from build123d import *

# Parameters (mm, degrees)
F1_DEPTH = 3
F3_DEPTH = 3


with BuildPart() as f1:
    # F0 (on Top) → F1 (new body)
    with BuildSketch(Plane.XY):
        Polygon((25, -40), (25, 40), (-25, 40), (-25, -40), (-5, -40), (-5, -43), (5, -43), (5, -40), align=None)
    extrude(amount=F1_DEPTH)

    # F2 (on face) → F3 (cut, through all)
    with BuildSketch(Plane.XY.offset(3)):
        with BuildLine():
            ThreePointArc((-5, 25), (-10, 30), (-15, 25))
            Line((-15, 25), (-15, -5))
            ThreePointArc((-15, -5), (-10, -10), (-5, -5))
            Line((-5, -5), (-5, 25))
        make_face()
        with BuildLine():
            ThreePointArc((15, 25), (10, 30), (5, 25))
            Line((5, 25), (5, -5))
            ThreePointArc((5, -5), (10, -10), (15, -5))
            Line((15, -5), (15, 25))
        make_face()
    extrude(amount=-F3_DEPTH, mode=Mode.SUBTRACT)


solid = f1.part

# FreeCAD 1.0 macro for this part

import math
import FreeCAD as App
import Part
import Sketcher
from FreeCAD import Vector
Q = App.Units.Quantity

doc = App.newDocument("Part")
body = doc.addObject("PartDesign::Body", "Body")

sketch1 = doc.addObject("Sketcher::SketchObject", "Sketch")
body.addObject(sketch1)
sketch1.AttachmentSupport = (doc.XY_Plane, [""])
sketch1.MapMode = "FlatFace"
sketch1.addGeometry([
    Part.LineSegment(Vector(25, -40, 0), Vector(25, 40, 0)),
    Part.LineSegment(Vector(25, 40, 0), Vector(-25, 40, 0)),
    Part.LineSegment(Vector(-25, 40, 0), Vector(-25, -40, 0)),
    Part.LineSegment(Vector(-25, -40, 0), Vector(-5, -40, 0)),
    Part.LineSegment(Vector(-5, -40, 0), Vector(-5, -43, 0)),
    Part.LineSegment(Vector(-5, -43, 0), Vector(5, -43, 0)),
    Part.LineSegment(Vector(5, -43, 0), Vector(5, -40, 0)),
    Part.LineSegment(Vector(5, -40, 0), Vector(25, -40, 0)),
], False)
sketch1.addConstraint([
    Sketcher.Constraint("Coincident", 0, 2, 1, 1),
    Sketcher.Constraint("Coincident", 1, 2, 2, 1),
    Sketcher.Constraint("Coincident", 2, 2, 3, 1),
    Sketcher.Constraint("Coincident", 3, 2, 4, 1),
    Sketcher.Constraint("Coincident", 4, 2, 5, 1),
    Sketcher.Constraint("Coincident", 5, 2, 6, 1),
    Sketcher.Constraint("Coincident", 6, 2, 7, 1),
    Sketcher.Constraint("Coincident", 7, 2, 0, 1),
    Sketcher.Constraint("Vertical", 0),
    Sketcher.Constraint("Horizontal", 1),
    Sketcher.Constraint("Vertical", 2),
    Sketcher.Constraint("Horizontal", 3),
    Sketcher.Constraint("Vertical", 4),
    Sketcher.Constraint("Horizontal", 5),
    Sketcher.Constraint("Vertical", 6),
    Sketcher.Constraint("Horizontal", 7),
    Sketcher.Constraint("Symmetric", 0, 2, 2, 2, -1, 1),
    Sketcher.Constraint("Symmetric", 3, 2, 6, 2, -2),
    Sketcher.Constraint("DistanceX", 1, 2, 1, 1, Q("50 mm")),
    Sketcher.Constraint("DistanceX", 3, 1, 3, 2, Q("20 mm")),
    Sketcher.Constraint("DistanceY", 0, 1, 0, 2, Q("80 mm")),
    Sketcher.Constraint("DistanceY", 4, 2, 4, 1, Q("3 mm")),
])
pad1 = doc.addObject("PartDesign::Pad", "Pad")
body.addObject(pad1)
pad1.Profile = sketch1
pad1.Length = 3

sketch2 = doc.addObject("Sketcher::SketchObject", "Sketch001")
body.addObject(sketch2)
sketch2.AttachmentSupport = (doc.XY_Plane, [""])
sketch2.MapMode = "FlatFace"
sketch2.AttachmentOffset = App.Placement(Vector(0, 0, 3), App.Rotation())
sketch2.addGeometry([
    Part.ArcOfCircle(Part.Circle(Vector(-10, 25, 0), Vector(0, 0, 1), 5), math.radians(0), math.radians(180)),
    Part.LineSegment(Vector(-15, 25, 0), Vector(-15, -5, 0)),
    Part.ArcOfCircle(Part.Circle(Vector(-10, -5, 0), Vector(0, 0, 1), 5), math.radians(180), math.radians(360)),
    Part.LineSegment(Vector(-5, -5, 0), Vector(-5, 25, 0)),
    Part.ArcOfCircle(Part.Circle(Vector(10, 25, 0), Vector(0, 0, 1), 5), math.radians(0), math.radians(180)),
    Part.LineSegment(Vector(5, 25, 0), Vector(5, -5, 0)),
    Part.ArcOfCircle(Part.Circle(Vector(10, -5, 0), Vector(0, 0, 1), 5), math.radians(180), math.radians(360)),
    Part.LineSegment(Vector(15, -5, 0), Vector(15, 25, 0)),
], False)
sketch2.addConstraint([
    Sketcher.Constraint("Tangent", 0, 2, 1, 1),
    Sketcher.Constraint("Tangent", 1, 2, 2, 1),
    Sketcher.Constraint("Tangent", 2, 2, 3, 1),
    Sketcher.Constraint("Tangent", 3, 2, 0, 1),
    Sketcher.Constraint("Tangent", 4, 2, 5, 1),
    Sketcher.Constraint("Tangent", 5, 2, 6, 1),
    Sketcher.Constraint("Tangent", 6, 2, 7, 1),
    Sketcher.Constraint("Tangent", 7, 2, 4, 1),
    Sketcher.Constraint("Vertical", 1),
    Sketcher.Constraint("Vertical", 3),
    Sketcher.Constraint("Vertical", 5),
    Sketcher.Constraint("Vertical", 7),
    Sketcher.Constraint("Equal", 2, 4),
    Sketcher.Constraint("Symmetric", 0, 3, 4, 3, -2),
    Sketcher.Constraint("Horizontal", 2, 3, 6, 3),
    Sketcher.Constraint("Radius", 0, Q("5 mm")),
    Sketcher.Constraint("DistanceY", 1, 2, 1, 1, Q("30 mm")),
    Sketcher.Constraint("DistanceX", 0, 3, -1, 1, Q("10 mm")),
    Sketcher.Constraint("DistanceY", -1, 1, 0, 3, Q("25 mm")),
])
pocket1 = doc.addObject("PartDesign::Pocket", "Pocket")
body.addObject(pocket1)
pocket1.Profile = sketch2
pocket1.Type = "ThroughAll"

doc.recompute()
